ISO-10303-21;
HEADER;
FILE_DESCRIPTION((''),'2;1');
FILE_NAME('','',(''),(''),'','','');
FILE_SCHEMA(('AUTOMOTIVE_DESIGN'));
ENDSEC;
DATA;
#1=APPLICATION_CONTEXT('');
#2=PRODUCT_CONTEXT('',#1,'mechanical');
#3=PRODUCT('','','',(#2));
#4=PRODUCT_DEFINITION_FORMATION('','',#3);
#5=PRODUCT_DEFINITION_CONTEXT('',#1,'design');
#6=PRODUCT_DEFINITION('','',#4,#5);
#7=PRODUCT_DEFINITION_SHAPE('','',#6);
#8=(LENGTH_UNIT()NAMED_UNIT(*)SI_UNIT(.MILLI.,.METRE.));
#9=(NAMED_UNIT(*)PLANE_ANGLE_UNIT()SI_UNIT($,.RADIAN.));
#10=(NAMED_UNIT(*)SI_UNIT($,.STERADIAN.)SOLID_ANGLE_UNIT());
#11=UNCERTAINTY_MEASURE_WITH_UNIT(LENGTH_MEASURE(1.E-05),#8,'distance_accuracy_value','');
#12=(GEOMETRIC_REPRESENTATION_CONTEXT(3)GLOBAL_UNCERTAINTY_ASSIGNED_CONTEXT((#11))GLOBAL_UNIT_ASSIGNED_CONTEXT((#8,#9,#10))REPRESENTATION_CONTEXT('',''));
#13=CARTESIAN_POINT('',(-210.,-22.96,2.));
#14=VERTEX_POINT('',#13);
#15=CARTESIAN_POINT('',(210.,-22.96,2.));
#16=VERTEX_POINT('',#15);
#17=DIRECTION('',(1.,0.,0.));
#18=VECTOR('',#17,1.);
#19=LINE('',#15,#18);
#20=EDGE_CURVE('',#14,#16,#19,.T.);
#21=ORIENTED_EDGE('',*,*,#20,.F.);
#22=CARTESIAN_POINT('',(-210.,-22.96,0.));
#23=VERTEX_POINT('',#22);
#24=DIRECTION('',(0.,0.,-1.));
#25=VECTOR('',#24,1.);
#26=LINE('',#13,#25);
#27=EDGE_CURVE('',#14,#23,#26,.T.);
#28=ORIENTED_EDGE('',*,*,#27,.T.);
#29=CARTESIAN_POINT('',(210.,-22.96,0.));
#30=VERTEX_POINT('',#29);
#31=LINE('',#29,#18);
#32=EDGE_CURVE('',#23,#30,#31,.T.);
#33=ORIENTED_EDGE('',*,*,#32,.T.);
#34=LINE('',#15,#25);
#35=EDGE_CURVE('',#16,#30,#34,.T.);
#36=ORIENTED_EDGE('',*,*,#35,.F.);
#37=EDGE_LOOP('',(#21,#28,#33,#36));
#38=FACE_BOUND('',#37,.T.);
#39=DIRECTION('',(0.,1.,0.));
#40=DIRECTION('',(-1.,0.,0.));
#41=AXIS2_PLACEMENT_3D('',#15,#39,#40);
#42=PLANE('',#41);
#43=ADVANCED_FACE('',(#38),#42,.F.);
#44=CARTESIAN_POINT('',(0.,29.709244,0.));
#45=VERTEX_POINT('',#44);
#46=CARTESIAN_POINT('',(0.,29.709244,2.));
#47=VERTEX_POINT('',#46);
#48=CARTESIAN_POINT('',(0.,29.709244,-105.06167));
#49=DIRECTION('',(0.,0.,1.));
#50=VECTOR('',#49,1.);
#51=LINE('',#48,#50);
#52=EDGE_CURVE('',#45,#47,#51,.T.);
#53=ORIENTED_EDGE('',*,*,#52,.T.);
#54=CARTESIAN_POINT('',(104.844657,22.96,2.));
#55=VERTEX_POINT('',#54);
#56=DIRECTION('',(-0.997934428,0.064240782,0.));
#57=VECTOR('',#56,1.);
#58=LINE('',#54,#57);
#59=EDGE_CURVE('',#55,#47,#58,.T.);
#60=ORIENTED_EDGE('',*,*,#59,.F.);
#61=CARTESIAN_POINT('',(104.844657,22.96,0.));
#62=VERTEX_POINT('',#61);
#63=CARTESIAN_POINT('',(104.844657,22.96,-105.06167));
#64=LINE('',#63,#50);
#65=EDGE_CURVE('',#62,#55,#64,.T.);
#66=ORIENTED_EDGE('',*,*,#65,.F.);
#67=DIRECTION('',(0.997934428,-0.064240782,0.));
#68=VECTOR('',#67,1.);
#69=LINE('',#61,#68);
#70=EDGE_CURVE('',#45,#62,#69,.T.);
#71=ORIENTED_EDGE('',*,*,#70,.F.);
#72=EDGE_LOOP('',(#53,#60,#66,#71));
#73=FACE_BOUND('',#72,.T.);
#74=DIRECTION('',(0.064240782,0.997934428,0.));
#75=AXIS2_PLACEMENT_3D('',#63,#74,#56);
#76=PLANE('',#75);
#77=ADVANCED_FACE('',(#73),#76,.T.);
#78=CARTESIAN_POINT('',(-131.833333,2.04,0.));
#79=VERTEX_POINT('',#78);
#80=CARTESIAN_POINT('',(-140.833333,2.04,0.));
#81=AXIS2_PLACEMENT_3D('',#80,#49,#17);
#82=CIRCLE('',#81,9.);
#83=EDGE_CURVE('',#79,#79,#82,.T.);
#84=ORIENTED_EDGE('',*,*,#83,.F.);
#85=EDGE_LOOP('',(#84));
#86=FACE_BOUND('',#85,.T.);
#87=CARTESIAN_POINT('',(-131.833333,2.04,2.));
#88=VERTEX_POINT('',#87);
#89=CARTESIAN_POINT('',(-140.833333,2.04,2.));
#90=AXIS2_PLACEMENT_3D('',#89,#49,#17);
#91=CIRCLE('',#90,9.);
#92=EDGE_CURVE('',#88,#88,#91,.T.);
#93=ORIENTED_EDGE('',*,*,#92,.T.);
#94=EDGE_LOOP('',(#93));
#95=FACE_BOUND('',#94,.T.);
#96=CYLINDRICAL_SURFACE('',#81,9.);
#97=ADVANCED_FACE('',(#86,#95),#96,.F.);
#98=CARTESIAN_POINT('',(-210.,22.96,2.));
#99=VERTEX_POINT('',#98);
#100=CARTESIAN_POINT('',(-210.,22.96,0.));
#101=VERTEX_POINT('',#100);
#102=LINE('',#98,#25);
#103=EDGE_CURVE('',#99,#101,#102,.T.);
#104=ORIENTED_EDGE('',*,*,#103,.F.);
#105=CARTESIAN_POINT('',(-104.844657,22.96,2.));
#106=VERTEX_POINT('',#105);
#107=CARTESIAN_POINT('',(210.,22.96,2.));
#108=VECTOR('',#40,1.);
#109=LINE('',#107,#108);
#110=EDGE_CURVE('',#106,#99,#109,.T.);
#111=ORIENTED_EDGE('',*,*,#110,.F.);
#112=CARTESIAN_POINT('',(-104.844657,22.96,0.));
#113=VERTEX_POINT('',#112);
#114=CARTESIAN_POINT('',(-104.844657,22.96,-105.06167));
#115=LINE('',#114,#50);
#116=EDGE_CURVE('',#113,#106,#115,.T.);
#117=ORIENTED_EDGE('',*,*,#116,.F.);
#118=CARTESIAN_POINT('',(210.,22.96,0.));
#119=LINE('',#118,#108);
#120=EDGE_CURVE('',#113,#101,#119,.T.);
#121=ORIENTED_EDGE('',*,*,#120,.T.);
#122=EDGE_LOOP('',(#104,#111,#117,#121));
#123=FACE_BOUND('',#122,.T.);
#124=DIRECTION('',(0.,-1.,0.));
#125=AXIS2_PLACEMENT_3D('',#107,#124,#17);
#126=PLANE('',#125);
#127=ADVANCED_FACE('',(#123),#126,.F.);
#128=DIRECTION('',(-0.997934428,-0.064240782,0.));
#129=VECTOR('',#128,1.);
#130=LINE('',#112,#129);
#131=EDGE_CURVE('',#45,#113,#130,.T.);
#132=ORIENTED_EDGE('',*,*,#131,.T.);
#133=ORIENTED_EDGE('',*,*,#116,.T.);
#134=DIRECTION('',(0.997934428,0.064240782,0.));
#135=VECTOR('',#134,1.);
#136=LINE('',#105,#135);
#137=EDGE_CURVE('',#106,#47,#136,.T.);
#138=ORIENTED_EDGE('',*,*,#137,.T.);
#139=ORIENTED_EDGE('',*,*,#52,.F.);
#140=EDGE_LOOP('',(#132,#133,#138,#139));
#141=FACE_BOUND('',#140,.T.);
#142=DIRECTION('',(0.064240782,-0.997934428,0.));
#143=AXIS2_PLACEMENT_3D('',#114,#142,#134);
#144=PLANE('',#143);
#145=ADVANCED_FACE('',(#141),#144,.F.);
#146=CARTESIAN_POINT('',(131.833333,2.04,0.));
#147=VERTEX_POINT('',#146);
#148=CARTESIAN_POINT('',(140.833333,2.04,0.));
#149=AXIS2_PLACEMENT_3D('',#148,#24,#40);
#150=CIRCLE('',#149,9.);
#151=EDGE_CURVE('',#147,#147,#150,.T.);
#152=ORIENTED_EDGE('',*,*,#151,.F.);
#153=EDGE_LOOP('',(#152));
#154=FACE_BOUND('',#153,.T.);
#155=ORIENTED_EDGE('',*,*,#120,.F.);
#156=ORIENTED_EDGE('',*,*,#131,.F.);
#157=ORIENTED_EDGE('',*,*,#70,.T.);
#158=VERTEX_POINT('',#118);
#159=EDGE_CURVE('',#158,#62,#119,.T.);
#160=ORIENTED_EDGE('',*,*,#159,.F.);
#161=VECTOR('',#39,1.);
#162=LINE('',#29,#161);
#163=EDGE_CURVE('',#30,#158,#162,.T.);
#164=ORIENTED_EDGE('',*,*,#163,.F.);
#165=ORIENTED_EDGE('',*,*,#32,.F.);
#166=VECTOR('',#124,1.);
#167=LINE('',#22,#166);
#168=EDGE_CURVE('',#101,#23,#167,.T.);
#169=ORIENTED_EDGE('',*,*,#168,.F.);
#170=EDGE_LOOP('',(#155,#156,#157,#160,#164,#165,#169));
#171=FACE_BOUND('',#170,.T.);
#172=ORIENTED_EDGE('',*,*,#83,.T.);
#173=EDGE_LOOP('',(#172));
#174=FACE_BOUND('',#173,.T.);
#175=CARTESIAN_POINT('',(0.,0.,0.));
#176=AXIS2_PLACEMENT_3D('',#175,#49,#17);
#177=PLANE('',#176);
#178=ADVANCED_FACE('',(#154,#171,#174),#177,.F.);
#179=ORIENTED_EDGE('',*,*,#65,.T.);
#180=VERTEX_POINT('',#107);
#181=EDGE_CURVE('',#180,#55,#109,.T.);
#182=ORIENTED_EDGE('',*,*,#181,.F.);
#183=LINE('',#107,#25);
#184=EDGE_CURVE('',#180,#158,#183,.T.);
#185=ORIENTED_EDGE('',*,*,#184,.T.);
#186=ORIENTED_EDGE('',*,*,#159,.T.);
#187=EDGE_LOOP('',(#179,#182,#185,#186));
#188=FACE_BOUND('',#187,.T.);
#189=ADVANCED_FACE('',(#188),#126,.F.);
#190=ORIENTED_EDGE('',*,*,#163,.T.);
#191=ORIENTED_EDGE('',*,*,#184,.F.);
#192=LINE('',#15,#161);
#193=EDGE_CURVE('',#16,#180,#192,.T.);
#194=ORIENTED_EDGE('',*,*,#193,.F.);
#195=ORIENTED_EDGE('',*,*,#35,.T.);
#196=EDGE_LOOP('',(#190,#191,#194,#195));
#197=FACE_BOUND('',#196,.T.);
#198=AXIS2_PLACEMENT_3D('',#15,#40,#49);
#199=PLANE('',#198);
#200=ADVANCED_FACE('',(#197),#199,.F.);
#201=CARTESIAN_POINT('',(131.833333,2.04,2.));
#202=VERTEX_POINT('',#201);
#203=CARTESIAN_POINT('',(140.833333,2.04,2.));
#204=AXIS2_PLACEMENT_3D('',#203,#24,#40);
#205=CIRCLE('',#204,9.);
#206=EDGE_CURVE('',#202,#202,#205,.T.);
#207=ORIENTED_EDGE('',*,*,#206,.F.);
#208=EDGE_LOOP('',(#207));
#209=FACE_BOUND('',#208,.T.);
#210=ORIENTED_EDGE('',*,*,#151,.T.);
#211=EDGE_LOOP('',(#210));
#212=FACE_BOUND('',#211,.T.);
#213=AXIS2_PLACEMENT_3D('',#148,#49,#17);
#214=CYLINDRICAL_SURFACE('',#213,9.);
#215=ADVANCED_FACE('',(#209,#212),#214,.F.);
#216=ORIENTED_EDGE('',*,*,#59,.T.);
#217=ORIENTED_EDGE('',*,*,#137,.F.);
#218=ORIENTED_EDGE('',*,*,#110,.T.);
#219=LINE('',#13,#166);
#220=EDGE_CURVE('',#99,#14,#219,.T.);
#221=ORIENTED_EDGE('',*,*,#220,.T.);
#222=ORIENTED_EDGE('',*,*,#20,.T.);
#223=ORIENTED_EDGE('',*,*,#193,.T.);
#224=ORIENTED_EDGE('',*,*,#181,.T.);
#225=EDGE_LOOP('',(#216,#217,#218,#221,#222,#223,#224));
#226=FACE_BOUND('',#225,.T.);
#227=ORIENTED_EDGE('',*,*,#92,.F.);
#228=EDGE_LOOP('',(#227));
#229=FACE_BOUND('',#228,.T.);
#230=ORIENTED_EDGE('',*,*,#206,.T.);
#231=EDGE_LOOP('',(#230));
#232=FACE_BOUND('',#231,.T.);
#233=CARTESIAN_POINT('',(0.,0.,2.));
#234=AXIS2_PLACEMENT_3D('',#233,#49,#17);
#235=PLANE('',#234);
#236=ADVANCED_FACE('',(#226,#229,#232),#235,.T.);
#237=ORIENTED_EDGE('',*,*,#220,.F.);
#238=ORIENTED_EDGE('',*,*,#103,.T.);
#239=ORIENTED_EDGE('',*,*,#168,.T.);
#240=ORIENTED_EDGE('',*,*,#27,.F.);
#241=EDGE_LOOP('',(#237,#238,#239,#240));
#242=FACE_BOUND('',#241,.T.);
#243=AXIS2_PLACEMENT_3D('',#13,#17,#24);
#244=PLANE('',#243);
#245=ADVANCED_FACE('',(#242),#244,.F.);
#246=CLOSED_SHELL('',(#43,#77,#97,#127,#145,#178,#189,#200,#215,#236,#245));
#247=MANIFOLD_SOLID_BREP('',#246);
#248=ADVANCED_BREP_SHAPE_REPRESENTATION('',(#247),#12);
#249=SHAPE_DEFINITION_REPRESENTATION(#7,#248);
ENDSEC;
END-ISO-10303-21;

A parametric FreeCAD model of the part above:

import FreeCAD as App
import Part
import Sketcher

V = App.Vector
Q = App.Units.Quantity

doc = App.newDocument("Part")
body = doc.addObject("PartDesign::Body", "Body")

sketch1 = body.newObject("Sketcher::SketchObject", "Sketch")
sketch1.AttachmentSupport = (doc.getObject("XY_Plane"), [""])
sketch1.MapMode = "FlatFace"
sketch1.addGeometry([
    Part.LineSegment(V(-210, 23, 0), V(-210, -23, 0)),
    Part.LineSegment(V(-210, -23, 0), V(210, -23, 0)),
    Part.LineSegment(V(210, -23, 0), V(210, 23, 0)),
    Part.LineSegment(V(210, 23, 0), V(-210, 23, 0)),
], False)
sketch1.addConstraint([
    Sketcher.Constraint("Coincident", 0, 2, 1, 1),
    Sketcher.Constraint("Coincident", 1, 2, 2, 1),
    Sketcher.Constraint("Coincident", 2, 2, 3, 1),
    Sketcher.Constraint("Coincident", 3, 2, 0, 1),
    Sketcher.Constraint("Vertical", 0),
    Sketcher.Constraint("Horizontal", 1),
    Sketcher.Constraint("Vertical", 2),
    Sketcher.Constraint("Horizontal", 3),
    Sketcher.Constraint("Symmetric", 0, 2, 2, 2, -1, 1),
    Sketcher.Constraint("DistanceX", 1, 1, 1, 2, Q("420 mm")),
    Sketcher.Constraint("DistanceY", 0, 2, 0, 1, Q("45.92 mm")),
])
pad1 = body.newObject("PartDesign::Pad", "Pad")
pad1.Profile = sketch1
pad1.Length = 2

sketch2 = body.newObject("Sketcher::SketchObject", "Sketch001")
sketch2.AttachmentSupport = (doc.getObject("XY_Plane"), [""])
sketch2.MapMode = "FlatFace"
sketch2.AttachmentOffset = App.Placement(V(0, 0, 2), App.Rotation())
sketch2.addGeometry(Part.Circle(V(-141, 2, 0), V(0, 0, 1), 9), False)
sketch2.addConstraint([
    Sketcher.Constraint("Diameter", 0, Q("18 mm")),
    Sketcher.Constraint("DistanceY", -1, 1, 0, 3, Q("2.04 mm")),
    Sketcher.Constraint("DistanceX", 0, 3, -1, 1, Q("140.833333 mm")),
])
pocket1 = body.newObject("PartDesign::Pocket", "Pocket")
pocket1.Profile = sketch2
pocket1.Type = "ThroughAll"
doc.recompute()

mirrored = body.newObject("PartDesign::Mirrored", "Mirrored")
mirrored.Originals = [pocket1]
mirrored.MirrorPlane = (doc.getObject("YZ_Plane"), [""])
body.Tip = mirrored

sketch3 = body.newObject("Sketcher::SketchObject", "Sketch002")
sketch3.AttachmentSupport = (doc.getObject("XY_Plane"), [""])
sketch3.MapMode = "FlatFace"
sketch3.AttachmentOffset = App.Placement(V(0, 0, 2), App.Rotation())
sketch3.addGeometry([
    Part.LineSegment(V(105, 23, 0), V(0, 30, 0)),
    Part.LineSegment(V(0, 30, 0), V(0, 23, 0)),
    Part.LineSegment(V(0, 23, 0), V(105, 23, 0)),
], False)
sketch3.addConstraint([
    Sketcher.Constraint("Coincident", 0, 2, 1, 1),
    Sketcher.Constraint("Coincident", 1, 2, 2, 1),
    Sketcher.Constraint("Coincident", 2, 2, 0, 1),
    Sketcher.Constraint("Vertical", 1),
    Sketcher.Constraint("Horizontal", 2),
    Sketcher.Constraint("PointOnObject", 0, 2, -2),
    Sketcher.Constraint("DistanceY", -1, 1, 1, 2, Q("22.96 mm")),
    Sketcher.Constraint("Distance", 0, Q("105.06167 mm")),
    Sketcher.Constraint("DistanceX", 2, 1, 2, 2, Q("104.844657 mm")),
])
pad2 = body.newObject("PartDesign::Pad", "Pad001")
pad2.Profile = sketch3
pad2.Length = 2
pad2.Reversed = True
doc.recompute()

mirrored2 = body.newObject("PartDesign::Mirrored", "Mirrored001")
mirrored2.Originals = [pad2]
mirrored2.MirrorPlane = (doc.getObject("YZ_Plane"), [""])
body.Tip = mirrored2

doc.recompute()
